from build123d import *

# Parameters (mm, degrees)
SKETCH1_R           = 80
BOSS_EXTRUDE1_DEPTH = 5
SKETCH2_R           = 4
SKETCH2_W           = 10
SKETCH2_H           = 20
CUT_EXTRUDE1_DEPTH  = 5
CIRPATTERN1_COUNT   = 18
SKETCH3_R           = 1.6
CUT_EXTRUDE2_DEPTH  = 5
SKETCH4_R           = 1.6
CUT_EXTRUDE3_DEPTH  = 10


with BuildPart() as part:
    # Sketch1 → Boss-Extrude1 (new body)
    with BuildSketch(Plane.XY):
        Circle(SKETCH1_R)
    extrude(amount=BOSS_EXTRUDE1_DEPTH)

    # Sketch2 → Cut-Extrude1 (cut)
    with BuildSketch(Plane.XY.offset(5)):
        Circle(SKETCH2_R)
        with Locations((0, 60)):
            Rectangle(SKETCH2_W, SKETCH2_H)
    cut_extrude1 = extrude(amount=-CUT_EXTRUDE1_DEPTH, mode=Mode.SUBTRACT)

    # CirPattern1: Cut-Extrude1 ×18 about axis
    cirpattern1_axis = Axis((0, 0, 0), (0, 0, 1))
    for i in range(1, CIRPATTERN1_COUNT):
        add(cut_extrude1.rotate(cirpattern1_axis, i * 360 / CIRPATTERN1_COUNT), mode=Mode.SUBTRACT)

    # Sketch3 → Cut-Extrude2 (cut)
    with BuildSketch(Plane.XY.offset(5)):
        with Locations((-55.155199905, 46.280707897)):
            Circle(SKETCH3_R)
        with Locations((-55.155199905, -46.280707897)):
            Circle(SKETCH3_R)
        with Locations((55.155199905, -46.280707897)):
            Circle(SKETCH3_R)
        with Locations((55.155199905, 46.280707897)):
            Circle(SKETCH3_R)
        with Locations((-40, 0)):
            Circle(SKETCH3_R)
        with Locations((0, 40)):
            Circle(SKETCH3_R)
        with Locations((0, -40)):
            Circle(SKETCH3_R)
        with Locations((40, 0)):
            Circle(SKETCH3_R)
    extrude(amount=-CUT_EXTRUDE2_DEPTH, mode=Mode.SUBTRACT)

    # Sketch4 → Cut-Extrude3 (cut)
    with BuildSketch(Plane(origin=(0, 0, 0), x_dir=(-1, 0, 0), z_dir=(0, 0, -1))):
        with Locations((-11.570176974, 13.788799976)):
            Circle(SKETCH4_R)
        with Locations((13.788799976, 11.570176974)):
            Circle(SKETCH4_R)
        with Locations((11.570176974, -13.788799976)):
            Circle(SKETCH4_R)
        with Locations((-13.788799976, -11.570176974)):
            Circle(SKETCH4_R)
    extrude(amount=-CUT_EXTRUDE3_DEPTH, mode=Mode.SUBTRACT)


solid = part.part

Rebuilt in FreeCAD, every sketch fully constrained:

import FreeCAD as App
import Part
import Sketcher
from FreeCAD import Vector
Q = App.Units.Quantity


def add_polygon(sketch, points):
    """Adds a closed chain of lines whose ends are joined by coincident constraints."""
    first, n = sketch.GeometryCount, len(points)
    for a, b in zip(points, points[1:] + points[:1]):
        sketch.addGeometry(Part.LineSegment(App.Vector(*a, 0), App.Vector(*b, 0)), False)
    for i in range(n):
        sketch.addConstraint(Sketcher.Constraint("Coincident", first + i, 2, first + (i + 1) % n, 1))

doc = App.newDocument("Part")
body = doc.addObject("PartDesign::Body", "Body")

sketch1 = body.newObject("Sketcher::SketchObject", "Sketch")
sketch1.AttachmentSupport = (doc.getObject("XY_Plane"), [""])
sketch1.MapMode = "FlatFace"
sketch1.addGeometry(Part.Circle(Vector(0, 0, 0), Vector(0, 0, 1), 80), False)
sketch1.addConstraint(Sketcher.Constraint("Coincident", 0, 3, -1, 1))
sketch1.addConstraint(Sketcher.Constraint("Diameter", 0, Q("160 mm")))
pad1 = body.newObject("PartDesign::Pad", "Pad")
pad1.Profile = sketch1
pad1.Length = 5

sketch2 = body.newObject("Sketcher::SketchObject", "Sketch001")
sketch2.AttachmentSupport = (doc.getObject("XY_Plane"), [""])
sketch2.MapMode = "FlatFace"
sketch2.AttachmentOffset = App.Placement(Vector(0, 0, 5), App.Rotation())
sketch2.addGeometry(Part.Circle(Vector(0, 0, 0), Vector(0, 0, 1), 4), False)
add_polygon(sketch2, [(-5, 70), (-5, 50), (5, 50), (5, 70)])
sketch2.addConstraint(Sketcher.Constraint("Vertical", 1))
sketch2.addConstraint(Sketcher.Constraint("Horizontal", 2))
sketch2.addConstraint(Sketcher.Constraint("Vertical", 3))
sketch2.addConstraint(Sketcher.Constraint("Horizontal", 4))
sketch2.addConstraint(Sketcher.Constraint("Coincident", 0, 3, -1, 1))
sketch2.addConstraint(Sketcher.Constraint("Diameter", 0, Q("8 mm")))
sketch2.addConstraint(Sketcher.Constraint("DistanceX", 2, 1, 2, 2, Q("10 mm")))
sketch2.addConstraint(Sketcher.Constraint("DistanceY", 1, 2, 1, 1, Q("20 mm")))
sketch2.addConstraint(Sketcher.Constraint("DistanceX", 1, 2, -1, 1, Q("5 mm")))
sketch2.addConstraint(Sketcher.Constraint("DistanceY", -1, 1, 1, 2, Q("50 mm")))
pocket1 = body.newObject("PartDesign::Pocket", "Pocket")
pocket1.Profile = sketch2
pocket1.Length = 5
doc.recompute()

polarpattern = body.newObject("PartDesign::PolarPattern", "PolarPattern")
polarpattern.Originals = [pocket1]
polarpattern.Axis = (doc.getObject("Z_Axis"), [""])
polarpattern.Angle = 360
polarpattern.Occurrences = 18
body.Tip = polarpattern

sketch3 = body.newObject("Sketcher::SketchObject", "Sketch002")
sketch3.AttachmentSupport = (doc.getObject("XY_Plane"), [""])
sketch3.MapMode = "FlatFace"
sketch3.AttachmentOffset = App.Placement(Vector(0, 0, 5), App.Rotation())
sketch3.addGeometry(Part.Circle(Vector(-55.2, 46.3, 0), Vector(0, 0, 1), 1.6), False)
sketch3.addGeometry(Part.Circle(Vector(-55.2, -46.3, 0), Vector(0, 0, 1), 1.6), False)
sketch3.addGeometry(Part.Circle(Vector(55.2, -46.3, 0), Vector(0, 0, 1), 1.6), False)
sketch3.addGeometry(Part.Circle(Vector(55.2, 46.3, 0), Vector(0, 0, 1), 1.6), False)
sketch3.addGeometry(Part.Circle(Vector(-40, 0, 0), Vector(0, 0, 1), 1.6), False)
sketch3.addGeometry(Part.Circle(Vector(0, 40, 0), Vector(0, 0, 1), 1.6), False)
sketch3.addGeometry(Part.Circle(Vector(0, -40, 0), Vector(0, 0, 1), 1.6), False)
sketch3.addGeometry(Part.Circle(Vector(40, 0, 0), Vector(0, 0, 1), 1.6), False)
sketch3.addConstraint(Sketcher.Constraint("Equal", 0, 1))
sketch3.addConstraint(Sketcher.Constraint("Equal", 1, 2))
sketch3.addConstraint(Sketcher.Constraint("Equal", 2, 3))
sketch3.addConstraint(Sketcher.Constraint("Equal", 3, 4))
sketch3.addConstraint(Sketcher.Constraint("Equal", 4, 5))
sketch3.addConstraint(Sketcher.Constraint("Equal", 5, 6))
sketch3.addConstraint(Sketcher.Constraint("Equal", 6, 7))
sketch3.addConstraint(Sketcher.Constraint("Symmetric", 0, 3, 2, 3, -1, 1))
sketch3.addConstraint(Sketcher.Constraint("Symmetric", 1, 3, 3, 3, -1, 1))
sketch3.addConstraint(Sketcher.Constraint("Symmetric", 5, 3, 6, 3, -1, 1))
sketch3.addConstraint(Sketcher.Constraint("Symmetric", 4, 3, 7, 3, -1, 1))
sketch3.addConstraint(Sketcher.Constraint("Symmetric", 1, 3, 2, 3, -2))
sketch3.addConstraint(Sketcher.Constraint("PointOnObject", 4, 3, -1))
sketch3.addConstraint(Sketcher.Constraint("PointOnObject", 5, 3, -2))
sketch3.addConstraint(Sketcher.Constraint("Diameter", 0, Q("3.2 mm")))
sketch3.addConstraint(Sketcher.Constraint("DistanceX", 4, 3, -1, 1, Q("40 mm")))
sketch3.addConstraint(Sketcher.Constraint("DistanceY", -1, 1, 5, 3, Q("40 mm")))
sketch3.addConstraint(Sketcher.Constraint("DistanceX", 0, 3, -1, 1, Q("55.1552 mm")))
sketch3.addConstraint(Sketcher.Constraint("DistanceY", -1, 1, 0, 3, Q("46.280708 mm")))
pocket2 = body.newObject("PartDesign::Pocket", "Pocket001")
pocket2.Profile = sketch3
pocket2.Length = 5

sketch4 = body.newObject("Sketcher::SketchObject", "Sketch003")
sketch4.AttachmentSupport = (doc.getObject("XY_Plane"), [""])
sketch4.MapMode = "FlatFace"
sketch4.addGeometry(Part.Circle(Vector(11.6, 13.8, 0), Vector(0, 0, 1), 1.6), False)
sketch4.addGeometry(Part.Circle(Vector(-13.8, 11.6, 0), Vector(0, 0, 1), 1.6), False)
sketch4.addGeometry(Part.Circle(Vector(-11.6, -13.8, 0), Vector(0, 0, 1), 1.6), False)
sketch4.addGeometry(Part.Circle(Vector(13.8, -11.6, 0), Vector(0, 0, 1), 1.6), False)
sketch4.addConstraint(Sketcher.Constraint("Equal", 0, 1))
sketch4.addConstraint(Sketcher.Constraint("Equal", 1, 2))
sketch4.addConstraint(Sketcher.Constraint("Equal", 2, 3))
sketch4.addConstraint(Sketcher.Constraint("Symmetric", 0, 3, 2, 3, -1, 1))
sketch4.addConstraint(Sketcher.Constraint("Symmetric", 1, 3, 3, 3, -1, 1))
sketch4.addConstraint(Sketcher.Constraint("Diameter", 0, Q("3.2 mm")))
sketch4.addConstraint(Sketcher.Constraint("DistanceY", -1, 1, 0, 3, Q("13.7888 mm")))
sketch4.addConstraint(Sketcher.Constraint("DistanceX", 1, 3, -1, 1, Q("13.7888 mm")))
sketch4.addConstraint(Sketcher.Constraint("DistanceX", -1, 1, 0, 3, Q("11.570177 mm")))
sketch4.addConstraint(Sketcher.Constraint("DistanceY", -1, 1, 1, 3, Q("11.570177 mm")))
pocket3 = body.newObject("PartDesign::Pocket", "Pocket002")
pocket3.Profile = sketch4
pocket3.Length = 10
pocket3.Reversed = True

doc.recompute()
